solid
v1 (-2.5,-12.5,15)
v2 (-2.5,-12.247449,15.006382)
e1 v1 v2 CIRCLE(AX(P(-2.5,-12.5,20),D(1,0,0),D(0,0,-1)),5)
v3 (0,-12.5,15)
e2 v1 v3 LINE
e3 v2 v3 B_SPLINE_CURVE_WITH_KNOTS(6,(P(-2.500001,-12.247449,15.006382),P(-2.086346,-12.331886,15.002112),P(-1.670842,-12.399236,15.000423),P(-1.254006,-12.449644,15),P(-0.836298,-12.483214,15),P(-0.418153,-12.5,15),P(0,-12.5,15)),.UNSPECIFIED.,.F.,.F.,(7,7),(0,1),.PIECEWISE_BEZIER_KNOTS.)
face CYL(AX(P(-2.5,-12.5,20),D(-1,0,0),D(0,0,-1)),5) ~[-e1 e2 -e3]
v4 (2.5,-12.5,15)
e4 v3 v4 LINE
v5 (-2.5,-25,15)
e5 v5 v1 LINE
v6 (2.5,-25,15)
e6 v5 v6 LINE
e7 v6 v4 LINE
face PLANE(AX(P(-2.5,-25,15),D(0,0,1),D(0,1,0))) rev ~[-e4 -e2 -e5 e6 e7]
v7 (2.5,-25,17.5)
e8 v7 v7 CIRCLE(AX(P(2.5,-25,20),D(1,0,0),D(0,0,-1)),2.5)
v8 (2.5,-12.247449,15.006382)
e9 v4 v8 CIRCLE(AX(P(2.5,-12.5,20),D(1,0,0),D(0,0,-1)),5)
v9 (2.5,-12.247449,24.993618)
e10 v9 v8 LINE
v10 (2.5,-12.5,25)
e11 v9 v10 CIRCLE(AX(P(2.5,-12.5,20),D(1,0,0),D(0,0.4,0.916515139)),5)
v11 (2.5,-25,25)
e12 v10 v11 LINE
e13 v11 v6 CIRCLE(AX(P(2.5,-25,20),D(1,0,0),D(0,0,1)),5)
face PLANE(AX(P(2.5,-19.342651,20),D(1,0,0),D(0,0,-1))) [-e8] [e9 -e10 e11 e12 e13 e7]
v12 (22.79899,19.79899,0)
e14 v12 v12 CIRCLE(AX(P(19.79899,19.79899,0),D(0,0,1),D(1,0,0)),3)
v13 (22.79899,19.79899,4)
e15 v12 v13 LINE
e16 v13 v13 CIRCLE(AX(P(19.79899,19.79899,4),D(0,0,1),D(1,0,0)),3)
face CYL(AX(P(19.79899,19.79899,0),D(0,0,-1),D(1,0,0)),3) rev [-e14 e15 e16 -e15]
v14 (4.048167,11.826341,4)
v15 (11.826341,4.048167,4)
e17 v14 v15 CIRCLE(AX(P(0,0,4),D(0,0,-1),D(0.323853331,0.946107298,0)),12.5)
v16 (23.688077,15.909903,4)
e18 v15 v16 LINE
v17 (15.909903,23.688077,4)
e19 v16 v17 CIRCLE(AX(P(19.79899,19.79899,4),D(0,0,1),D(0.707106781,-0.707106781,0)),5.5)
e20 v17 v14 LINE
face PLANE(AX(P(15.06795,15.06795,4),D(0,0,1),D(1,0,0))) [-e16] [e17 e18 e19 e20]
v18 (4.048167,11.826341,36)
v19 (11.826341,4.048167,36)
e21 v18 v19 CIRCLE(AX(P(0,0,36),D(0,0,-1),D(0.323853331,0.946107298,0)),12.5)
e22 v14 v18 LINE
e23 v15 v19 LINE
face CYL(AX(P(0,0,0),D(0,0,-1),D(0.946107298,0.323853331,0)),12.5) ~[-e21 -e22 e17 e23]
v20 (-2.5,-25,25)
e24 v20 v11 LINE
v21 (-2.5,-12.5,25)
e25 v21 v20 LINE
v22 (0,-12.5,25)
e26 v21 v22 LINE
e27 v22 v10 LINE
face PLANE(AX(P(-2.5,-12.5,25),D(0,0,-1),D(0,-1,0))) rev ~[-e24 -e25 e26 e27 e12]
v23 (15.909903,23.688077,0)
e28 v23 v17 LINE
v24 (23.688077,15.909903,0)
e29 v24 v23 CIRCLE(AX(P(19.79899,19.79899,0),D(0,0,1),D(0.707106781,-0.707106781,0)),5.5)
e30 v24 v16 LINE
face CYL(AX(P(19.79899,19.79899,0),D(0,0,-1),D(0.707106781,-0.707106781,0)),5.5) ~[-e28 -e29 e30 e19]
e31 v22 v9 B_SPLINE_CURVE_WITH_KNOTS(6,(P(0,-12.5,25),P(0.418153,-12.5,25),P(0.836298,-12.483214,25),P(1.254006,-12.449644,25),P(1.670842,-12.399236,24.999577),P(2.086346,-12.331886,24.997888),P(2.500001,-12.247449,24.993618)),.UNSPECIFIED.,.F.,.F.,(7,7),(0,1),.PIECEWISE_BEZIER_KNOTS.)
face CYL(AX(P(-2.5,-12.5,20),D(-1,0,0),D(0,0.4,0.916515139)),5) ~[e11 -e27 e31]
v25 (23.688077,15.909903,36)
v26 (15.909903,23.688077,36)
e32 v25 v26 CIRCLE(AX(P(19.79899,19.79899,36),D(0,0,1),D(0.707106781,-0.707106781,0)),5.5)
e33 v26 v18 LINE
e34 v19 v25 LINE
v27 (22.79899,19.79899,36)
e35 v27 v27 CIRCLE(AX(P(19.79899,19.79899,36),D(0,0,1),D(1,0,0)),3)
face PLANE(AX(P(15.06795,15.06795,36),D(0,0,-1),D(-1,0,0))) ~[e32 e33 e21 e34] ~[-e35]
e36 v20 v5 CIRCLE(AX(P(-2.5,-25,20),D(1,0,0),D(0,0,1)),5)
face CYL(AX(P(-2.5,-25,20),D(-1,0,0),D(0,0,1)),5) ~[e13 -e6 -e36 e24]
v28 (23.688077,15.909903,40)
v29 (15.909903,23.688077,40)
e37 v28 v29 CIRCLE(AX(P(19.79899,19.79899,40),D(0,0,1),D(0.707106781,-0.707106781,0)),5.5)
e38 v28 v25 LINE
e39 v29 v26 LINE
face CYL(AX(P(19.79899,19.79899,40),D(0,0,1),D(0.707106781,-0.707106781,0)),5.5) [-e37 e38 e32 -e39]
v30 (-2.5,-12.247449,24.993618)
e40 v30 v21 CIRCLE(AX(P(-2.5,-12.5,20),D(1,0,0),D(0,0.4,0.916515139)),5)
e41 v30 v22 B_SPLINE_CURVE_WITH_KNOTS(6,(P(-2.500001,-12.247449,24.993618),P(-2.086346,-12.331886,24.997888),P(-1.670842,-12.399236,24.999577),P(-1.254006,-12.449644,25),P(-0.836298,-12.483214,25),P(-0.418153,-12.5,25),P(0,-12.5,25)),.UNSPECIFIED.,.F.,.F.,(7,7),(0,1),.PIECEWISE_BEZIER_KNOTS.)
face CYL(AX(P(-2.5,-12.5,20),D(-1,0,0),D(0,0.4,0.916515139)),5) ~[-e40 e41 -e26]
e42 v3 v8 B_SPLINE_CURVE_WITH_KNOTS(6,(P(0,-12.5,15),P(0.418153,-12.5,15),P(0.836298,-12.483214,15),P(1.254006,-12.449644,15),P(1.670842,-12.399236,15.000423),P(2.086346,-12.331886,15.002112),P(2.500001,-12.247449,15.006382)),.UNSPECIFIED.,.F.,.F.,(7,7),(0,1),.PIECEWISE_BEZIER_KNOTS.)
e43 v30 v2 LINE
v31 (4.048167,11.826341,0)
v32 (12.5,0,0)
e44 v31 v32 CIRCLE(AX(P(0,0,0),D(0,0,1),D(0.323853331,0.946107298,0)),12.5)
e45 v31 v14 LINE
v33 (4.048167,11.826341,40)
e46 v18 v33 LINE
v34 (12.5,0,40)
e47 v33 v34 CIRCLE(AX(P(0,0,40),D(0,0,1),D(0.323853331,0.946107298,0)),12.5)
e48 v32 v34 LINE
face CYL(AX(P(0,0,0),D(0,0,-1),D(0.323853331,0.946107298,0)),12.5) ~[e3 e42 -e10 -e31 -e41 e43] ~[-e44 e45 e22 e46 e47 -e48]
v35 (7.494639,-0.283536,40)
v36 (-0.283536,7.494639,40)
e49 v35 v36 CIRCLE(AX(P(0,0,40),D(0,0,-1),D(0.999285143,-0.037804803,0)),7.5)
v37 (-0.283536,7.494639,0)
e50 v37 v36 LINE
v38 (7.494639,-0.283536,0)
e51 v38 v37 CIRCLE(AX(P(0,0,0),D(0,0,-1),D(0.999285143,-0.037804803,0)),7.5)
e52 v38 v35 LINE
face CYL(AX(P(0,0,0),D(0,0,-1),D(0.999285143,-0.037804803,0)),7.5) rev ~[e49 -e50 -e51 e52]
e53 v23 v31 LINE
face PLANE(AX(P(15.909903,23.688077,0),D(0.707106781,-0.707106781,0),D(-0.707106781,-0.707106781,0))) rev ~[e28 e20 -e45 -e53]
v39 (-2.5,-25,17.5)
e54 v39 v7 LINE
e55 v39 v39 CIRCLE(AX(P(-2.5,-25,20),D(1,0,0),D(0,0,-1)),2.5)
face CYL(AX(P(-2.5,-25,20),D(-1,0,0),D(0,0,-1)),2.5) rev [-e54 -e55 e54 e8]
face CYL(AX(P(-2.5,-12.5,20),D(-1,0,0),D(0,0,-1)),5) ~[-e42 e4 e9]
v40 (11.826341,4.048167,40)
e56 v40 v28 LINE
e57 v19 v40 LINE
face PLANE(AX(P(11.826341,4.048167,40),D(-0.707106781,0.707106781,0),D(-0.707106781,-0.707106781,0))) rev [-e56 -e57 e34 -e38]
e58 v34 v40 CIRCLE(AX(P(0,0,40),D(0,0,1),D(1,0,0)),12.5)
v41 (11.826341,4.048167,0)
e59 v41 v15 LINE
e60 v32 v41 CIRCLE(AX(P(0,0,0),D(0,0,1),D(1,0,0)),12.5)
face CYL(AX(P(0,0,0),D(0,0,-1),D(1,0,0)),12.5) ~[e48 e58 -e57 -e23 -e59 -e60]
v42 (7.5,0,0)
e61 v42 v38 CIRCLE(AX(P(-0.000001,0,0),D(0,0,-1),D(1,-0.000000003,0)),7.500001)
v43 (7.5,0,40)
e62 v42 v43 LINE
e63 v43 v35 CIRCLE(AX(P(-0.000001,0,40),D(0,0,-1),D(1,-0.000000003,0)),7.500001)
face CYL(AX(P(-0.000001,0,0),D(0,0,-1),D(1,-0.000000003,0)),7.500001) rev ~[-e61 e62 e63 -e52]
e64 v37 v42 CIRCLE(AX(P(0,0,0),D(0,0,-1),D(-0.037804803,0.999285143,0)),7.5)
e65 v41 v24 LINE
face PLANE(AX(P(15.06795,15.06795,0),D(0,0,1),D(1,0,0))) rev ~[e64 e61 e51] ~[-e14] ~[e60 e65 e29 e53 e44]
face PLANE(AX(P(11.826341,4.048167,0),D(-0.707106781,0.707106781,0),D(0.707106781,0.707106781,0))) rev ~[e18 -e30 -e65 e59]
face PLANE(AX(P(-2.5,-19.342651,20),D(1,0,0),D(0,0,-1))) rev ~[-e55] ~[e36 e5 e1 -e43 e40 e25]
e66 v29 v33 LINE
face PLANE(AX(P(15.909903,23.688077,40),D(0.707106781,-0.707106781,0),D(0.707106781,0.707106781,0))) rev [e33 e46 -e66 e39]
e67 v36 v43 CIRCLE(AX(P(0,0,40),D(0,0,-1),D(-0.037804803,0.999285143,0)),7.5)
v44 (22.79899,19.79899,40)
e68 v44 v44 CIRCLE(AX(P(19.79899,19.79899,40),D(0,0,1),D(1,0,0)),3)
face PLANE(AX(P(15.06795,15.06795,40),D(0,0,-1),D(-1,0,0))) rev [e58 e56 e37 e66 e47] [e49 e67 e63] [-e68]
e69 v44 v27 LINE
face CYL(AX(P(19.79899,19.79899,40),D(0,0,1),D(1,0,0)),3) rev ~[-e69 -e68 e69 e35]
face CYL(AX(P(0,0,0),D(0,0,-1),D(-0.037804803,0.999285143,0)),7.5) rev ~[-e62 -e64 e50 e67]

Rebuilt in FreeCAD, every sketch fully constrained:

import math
import FreeCAD as App
import Part
import Sketcher
from FreeCAD import Vector
Q = App.Units.Quantity

doc = App.newDocument("Part")
body = doc.addObject("PartDesign::Body", "Body")

# Sketch on XY plane
sketch1 = doc.addObject("Sketcher::SketchObject", "Sketch")
body.addObject(sketch1)
sketch1.AttachmentSupport = (doc.XY_Plane, [""])
sketch1.MapMode = "FlatFace"
sketch1.addGeometry([
    Part.ArcOfCircle(Part.Circle(Vector(0, 0, 0), Vector(0, 0, 1), 12.5), math.radians(71), math.radians(360)),  # 0
    Part.ArcOfCircle(Part.Circle(Vector(0, 0, 0), Vector(0, 0, 1), 12.5), math.radians(0), math.radians(18.9)),  # 1
    Part.ArcOfCircle(Part.Circle(Vector(0, 0, 0), Vector(0, 0, 1), 12.5), math.radians(19), math.radians(71)),  # 2
    Part.ArcOfCircle(Part.Circle(Vector(0, 0, 0), Vector(0, 0, 1), 7.5), math.radians(92), math.radians(358)),  # 3
    Part.ArcOfCircle(Part.Circle(Vector(0, 0, 0), Vector(0, 0, 1), 7.5), math.radians(0), math.radians(92)),  # 4
    Part.ArcOfCircle(Part.Circle(Vector(0, 0, 0), Vector(0, 0, 1), 7.5), math.radians(-2.17), math.radians(0)),  # 5
], False)
sketch1.addConstraint([
    Sketcher.Constraint("Tangent", 0, 2, 1, 1),
    Sketcher.Constraint("Tangent", 1, 2, 2, 1),
    Sketcher.Constraint("Tangent", 2, 2, 0, 1),
    Sketcher.Constraint("Tangent", 3, 1, 4, 2),
    Sketcher.Constraint("Tangent", 4, 1, 5, 2),
    Sketcher.Constraint("Tangent", 5, 1, 3, 2),
    Sketcher.Constraint("Coincident", 0, 3, -1, 1),
    Sketcher.Constraint("Coincident", 3, 3, -1, 1),
    Sketcher.Constraint("PointOnObject", 0, 2, -1),
    Sketcher.Constraint("PointOnObject", 4, 1, -1),
    Sketcher.Constraint("Radius", 0, 12.5),
    Sketcher.Constraint("Radius", 3, 7.5),
    Sketcher.Constraint("DistanceX", -1, 1, 1, 2, 11.826341),
    Sketcher.Constraint("DistanceY", -1, 1, 2, 2, 11.826341),
    Sketcher.Constraint("DistanceY", -1, 1, 3, 1, 7.494639),
    Sketcher.Constraint("DistanceX", -1, 1, 5, 1, 7.494639),
])
pad1 = doc.addObject("PartDesign::Pad", "Pad")
body.addObject(pad1)
pad1.Profile = sketch1
pad1.Length = 40

# Sketch on XY plane
sketch2 = doc.addObject("Sketcher::SketchObject", "Sketch001")
body.addObject(sketch2)
sketch2.AttachmentSupport = (doc.XY_Plane, [""])
sketch2.MapMode = "FlatFace"
sketch2.addGeometry([
    Part.LineSegment(Vector(15.9, 23.7, 0), Vector(4, 11.8, 0)),  # 0
    Part.ArcOfCircle(Part.Circle(Vector(0, 0, 0), Vector(0, 0, 1), 12.5), math.radians(19), math.radians(71)),  # 1
    Part.LineSegment(Vector(11.8, 4, 0), Vector(23.7, 15.9, 0)),  # 2
    Part.ArcOfCircle(Part.Circle(Vector(19.8, 19.8, 0), Vector(0, 0, 1), 5.5), math.radians(-45), math.radians(135)),  # 3
    Part.Circle(Vector(19.8, 19.8, 0), Vector(0, 0, 1), 3),  # 4
], False)
sketch2.addConstraint([
    Sketcher.Constraint("Coincident", 0, 2, 1, 2),
    Sketcher.Constraint("Coincident", 1, 1, 2, 1),
    Sketcher.Constraint("Tangent", 2, 2, 3, 1),
    Sketcher.Constraint("Tangent", 3, 2, 0, 1),
    Sketcher.Constraint("Coincident", 1, 3, -1, 1),
    Sketcher.Constraint("Coincident", 4, 3, 3, 3),
    Sketcher.Constraint("Parallel", 0, 2),
    Sketcher.Constraint("Equal", 0, 2),
    Sketcher.Constraint("Diameter", 4, 6.0),
    Sketcher.Constraint("Radius", 1, 12.5),
    Sketcher.Constraint("Radius", 3, 5.5),
    Sketcher.Constraint("Angle", 0, Q("-135 deg")),
    Sketcher.Constraint("DistanceX", -1, 1, 3, 3, 19.79899),
])
pad2 = doc.addObject("PartDesign::Pad", "Pad001")
body.addObject(pad2)
pad2.Profile = sketch2
pad2.Length = 4
doc.recompute()

datumplane = doc.addObject("PartDesign::Plane", "DatumPlane")
body.addObject(datumplane)
datumplane.AttachmentSupport = (doc.XY_Plane, [""])
datumplane.MapMode = "FlatFace"
datumplane.AttachmentOffset = App.Placement(Vector(0, 0, 20), App.Rotation())
mirrored = doc.addObject("PartDesign::Mirrored", "Mirrored")
body.addObject(mirrored)
mirrored.Originals = [pad2]
mirrored.MirrorPlane = (datumplane, [""])
body.Tip = mirrored

# Sketch on YZ plane
sketch3 = doc.addObject("Sketcher::SketchObject", "Sketch002")
body.addObject(sketch3)
sketch3.AttachmentSupport = (doc.YZ_Plane, [""])
sketch3.MapMode = "FlatFace"
sketch3.addGeometry([
    Part.LineSegment(Vector(-12.5, 25, 0), Vector(-25, 25, 0)),  # 0
    Part.ArcOfCircle(Part.Circle(Vector(-25, 20, 0), Vector(0, 0, 1), 5), math.radians(90), math.radians(270)),  # 1
    Part.LineSegment(Vector(-25, 15, 0), Vector(-12.5, 15, 0)),  # 2
    Part.ArcOfCircle(Part.Circle(Vector(-12.5, 20, 0), Vector(0, 0, 1), 5), math.radians(-90), math.radians(-66)),  # 3
    Part.LineSegment(Vector(-10.5, 15.4, 0), Vector(-10.5, 24.6, 0)),  # 4
    Part.ArcOfCircle(Part.Circle(Vector(-12.5, 20, 0), Vector(0, 0, 1), 5), math.radians(66), math.radians(90)),  # 5
    Part.Circle(Vector(-25, 20, 0), Vector(0, 0, 1), 2.5),  # 6
], False)
sketch3.addConstraint([
    Sketcher.Constraint("Tangent", 0, 2, 1, 1),
    Sketcher.Constraint("Tangent", 1, 2, 2, 1),
    Sketcher.Constraint("Tangent", 2, 2, 3, 1),
    Sketcher.Constraint("Coincident", 3, 2, 4, 1),
    Sketcher.Constraint("Coincident", 4, 2, 5, 1),
    Sketcher.Constraint("Tangent", 5, 2, 0, 1),
    Sketcher.Constraint("Horizontal", 0),
    Sketcher.Constraint("Horizontal", 2),
    Sketcher.Constraint("Vertical", 4),
    Sketcher.Constraint("Coincident", 5, 3, 3, 3),
    Sketcher.Constraint("Coincident", 6, 3, 1, 3),
    Sketcher.Constraint("Equal", 1, 3),
    Sketcher.Constraint("Diameter", 6, 5.0),
    Sketcher.Constraint("Radius", 1, 5.0),
    Sketcher.Constraint("DistanceX", 0, 2, 0, 1, 12.5),
    Sketcher.Constraint("DistanceX", 1, 3, -1, 1, 25.0),
    Sketcher.Constraint("DistanceY", -1, 1, 1, 3, 20.0),
    Sketcher.Constraint("DistanceX", 2, 2, 3, 2, 2.0),
])
pad3 = doc.addObject("PartDesign::Pad", "Pad002")
body.addObject(pad3)
pad3.Profile = sketch3
pad3.Type = "TwoLengths"
pad3.Length = 2.5
pad3.Length2 = 2.5

doc.recompute()
